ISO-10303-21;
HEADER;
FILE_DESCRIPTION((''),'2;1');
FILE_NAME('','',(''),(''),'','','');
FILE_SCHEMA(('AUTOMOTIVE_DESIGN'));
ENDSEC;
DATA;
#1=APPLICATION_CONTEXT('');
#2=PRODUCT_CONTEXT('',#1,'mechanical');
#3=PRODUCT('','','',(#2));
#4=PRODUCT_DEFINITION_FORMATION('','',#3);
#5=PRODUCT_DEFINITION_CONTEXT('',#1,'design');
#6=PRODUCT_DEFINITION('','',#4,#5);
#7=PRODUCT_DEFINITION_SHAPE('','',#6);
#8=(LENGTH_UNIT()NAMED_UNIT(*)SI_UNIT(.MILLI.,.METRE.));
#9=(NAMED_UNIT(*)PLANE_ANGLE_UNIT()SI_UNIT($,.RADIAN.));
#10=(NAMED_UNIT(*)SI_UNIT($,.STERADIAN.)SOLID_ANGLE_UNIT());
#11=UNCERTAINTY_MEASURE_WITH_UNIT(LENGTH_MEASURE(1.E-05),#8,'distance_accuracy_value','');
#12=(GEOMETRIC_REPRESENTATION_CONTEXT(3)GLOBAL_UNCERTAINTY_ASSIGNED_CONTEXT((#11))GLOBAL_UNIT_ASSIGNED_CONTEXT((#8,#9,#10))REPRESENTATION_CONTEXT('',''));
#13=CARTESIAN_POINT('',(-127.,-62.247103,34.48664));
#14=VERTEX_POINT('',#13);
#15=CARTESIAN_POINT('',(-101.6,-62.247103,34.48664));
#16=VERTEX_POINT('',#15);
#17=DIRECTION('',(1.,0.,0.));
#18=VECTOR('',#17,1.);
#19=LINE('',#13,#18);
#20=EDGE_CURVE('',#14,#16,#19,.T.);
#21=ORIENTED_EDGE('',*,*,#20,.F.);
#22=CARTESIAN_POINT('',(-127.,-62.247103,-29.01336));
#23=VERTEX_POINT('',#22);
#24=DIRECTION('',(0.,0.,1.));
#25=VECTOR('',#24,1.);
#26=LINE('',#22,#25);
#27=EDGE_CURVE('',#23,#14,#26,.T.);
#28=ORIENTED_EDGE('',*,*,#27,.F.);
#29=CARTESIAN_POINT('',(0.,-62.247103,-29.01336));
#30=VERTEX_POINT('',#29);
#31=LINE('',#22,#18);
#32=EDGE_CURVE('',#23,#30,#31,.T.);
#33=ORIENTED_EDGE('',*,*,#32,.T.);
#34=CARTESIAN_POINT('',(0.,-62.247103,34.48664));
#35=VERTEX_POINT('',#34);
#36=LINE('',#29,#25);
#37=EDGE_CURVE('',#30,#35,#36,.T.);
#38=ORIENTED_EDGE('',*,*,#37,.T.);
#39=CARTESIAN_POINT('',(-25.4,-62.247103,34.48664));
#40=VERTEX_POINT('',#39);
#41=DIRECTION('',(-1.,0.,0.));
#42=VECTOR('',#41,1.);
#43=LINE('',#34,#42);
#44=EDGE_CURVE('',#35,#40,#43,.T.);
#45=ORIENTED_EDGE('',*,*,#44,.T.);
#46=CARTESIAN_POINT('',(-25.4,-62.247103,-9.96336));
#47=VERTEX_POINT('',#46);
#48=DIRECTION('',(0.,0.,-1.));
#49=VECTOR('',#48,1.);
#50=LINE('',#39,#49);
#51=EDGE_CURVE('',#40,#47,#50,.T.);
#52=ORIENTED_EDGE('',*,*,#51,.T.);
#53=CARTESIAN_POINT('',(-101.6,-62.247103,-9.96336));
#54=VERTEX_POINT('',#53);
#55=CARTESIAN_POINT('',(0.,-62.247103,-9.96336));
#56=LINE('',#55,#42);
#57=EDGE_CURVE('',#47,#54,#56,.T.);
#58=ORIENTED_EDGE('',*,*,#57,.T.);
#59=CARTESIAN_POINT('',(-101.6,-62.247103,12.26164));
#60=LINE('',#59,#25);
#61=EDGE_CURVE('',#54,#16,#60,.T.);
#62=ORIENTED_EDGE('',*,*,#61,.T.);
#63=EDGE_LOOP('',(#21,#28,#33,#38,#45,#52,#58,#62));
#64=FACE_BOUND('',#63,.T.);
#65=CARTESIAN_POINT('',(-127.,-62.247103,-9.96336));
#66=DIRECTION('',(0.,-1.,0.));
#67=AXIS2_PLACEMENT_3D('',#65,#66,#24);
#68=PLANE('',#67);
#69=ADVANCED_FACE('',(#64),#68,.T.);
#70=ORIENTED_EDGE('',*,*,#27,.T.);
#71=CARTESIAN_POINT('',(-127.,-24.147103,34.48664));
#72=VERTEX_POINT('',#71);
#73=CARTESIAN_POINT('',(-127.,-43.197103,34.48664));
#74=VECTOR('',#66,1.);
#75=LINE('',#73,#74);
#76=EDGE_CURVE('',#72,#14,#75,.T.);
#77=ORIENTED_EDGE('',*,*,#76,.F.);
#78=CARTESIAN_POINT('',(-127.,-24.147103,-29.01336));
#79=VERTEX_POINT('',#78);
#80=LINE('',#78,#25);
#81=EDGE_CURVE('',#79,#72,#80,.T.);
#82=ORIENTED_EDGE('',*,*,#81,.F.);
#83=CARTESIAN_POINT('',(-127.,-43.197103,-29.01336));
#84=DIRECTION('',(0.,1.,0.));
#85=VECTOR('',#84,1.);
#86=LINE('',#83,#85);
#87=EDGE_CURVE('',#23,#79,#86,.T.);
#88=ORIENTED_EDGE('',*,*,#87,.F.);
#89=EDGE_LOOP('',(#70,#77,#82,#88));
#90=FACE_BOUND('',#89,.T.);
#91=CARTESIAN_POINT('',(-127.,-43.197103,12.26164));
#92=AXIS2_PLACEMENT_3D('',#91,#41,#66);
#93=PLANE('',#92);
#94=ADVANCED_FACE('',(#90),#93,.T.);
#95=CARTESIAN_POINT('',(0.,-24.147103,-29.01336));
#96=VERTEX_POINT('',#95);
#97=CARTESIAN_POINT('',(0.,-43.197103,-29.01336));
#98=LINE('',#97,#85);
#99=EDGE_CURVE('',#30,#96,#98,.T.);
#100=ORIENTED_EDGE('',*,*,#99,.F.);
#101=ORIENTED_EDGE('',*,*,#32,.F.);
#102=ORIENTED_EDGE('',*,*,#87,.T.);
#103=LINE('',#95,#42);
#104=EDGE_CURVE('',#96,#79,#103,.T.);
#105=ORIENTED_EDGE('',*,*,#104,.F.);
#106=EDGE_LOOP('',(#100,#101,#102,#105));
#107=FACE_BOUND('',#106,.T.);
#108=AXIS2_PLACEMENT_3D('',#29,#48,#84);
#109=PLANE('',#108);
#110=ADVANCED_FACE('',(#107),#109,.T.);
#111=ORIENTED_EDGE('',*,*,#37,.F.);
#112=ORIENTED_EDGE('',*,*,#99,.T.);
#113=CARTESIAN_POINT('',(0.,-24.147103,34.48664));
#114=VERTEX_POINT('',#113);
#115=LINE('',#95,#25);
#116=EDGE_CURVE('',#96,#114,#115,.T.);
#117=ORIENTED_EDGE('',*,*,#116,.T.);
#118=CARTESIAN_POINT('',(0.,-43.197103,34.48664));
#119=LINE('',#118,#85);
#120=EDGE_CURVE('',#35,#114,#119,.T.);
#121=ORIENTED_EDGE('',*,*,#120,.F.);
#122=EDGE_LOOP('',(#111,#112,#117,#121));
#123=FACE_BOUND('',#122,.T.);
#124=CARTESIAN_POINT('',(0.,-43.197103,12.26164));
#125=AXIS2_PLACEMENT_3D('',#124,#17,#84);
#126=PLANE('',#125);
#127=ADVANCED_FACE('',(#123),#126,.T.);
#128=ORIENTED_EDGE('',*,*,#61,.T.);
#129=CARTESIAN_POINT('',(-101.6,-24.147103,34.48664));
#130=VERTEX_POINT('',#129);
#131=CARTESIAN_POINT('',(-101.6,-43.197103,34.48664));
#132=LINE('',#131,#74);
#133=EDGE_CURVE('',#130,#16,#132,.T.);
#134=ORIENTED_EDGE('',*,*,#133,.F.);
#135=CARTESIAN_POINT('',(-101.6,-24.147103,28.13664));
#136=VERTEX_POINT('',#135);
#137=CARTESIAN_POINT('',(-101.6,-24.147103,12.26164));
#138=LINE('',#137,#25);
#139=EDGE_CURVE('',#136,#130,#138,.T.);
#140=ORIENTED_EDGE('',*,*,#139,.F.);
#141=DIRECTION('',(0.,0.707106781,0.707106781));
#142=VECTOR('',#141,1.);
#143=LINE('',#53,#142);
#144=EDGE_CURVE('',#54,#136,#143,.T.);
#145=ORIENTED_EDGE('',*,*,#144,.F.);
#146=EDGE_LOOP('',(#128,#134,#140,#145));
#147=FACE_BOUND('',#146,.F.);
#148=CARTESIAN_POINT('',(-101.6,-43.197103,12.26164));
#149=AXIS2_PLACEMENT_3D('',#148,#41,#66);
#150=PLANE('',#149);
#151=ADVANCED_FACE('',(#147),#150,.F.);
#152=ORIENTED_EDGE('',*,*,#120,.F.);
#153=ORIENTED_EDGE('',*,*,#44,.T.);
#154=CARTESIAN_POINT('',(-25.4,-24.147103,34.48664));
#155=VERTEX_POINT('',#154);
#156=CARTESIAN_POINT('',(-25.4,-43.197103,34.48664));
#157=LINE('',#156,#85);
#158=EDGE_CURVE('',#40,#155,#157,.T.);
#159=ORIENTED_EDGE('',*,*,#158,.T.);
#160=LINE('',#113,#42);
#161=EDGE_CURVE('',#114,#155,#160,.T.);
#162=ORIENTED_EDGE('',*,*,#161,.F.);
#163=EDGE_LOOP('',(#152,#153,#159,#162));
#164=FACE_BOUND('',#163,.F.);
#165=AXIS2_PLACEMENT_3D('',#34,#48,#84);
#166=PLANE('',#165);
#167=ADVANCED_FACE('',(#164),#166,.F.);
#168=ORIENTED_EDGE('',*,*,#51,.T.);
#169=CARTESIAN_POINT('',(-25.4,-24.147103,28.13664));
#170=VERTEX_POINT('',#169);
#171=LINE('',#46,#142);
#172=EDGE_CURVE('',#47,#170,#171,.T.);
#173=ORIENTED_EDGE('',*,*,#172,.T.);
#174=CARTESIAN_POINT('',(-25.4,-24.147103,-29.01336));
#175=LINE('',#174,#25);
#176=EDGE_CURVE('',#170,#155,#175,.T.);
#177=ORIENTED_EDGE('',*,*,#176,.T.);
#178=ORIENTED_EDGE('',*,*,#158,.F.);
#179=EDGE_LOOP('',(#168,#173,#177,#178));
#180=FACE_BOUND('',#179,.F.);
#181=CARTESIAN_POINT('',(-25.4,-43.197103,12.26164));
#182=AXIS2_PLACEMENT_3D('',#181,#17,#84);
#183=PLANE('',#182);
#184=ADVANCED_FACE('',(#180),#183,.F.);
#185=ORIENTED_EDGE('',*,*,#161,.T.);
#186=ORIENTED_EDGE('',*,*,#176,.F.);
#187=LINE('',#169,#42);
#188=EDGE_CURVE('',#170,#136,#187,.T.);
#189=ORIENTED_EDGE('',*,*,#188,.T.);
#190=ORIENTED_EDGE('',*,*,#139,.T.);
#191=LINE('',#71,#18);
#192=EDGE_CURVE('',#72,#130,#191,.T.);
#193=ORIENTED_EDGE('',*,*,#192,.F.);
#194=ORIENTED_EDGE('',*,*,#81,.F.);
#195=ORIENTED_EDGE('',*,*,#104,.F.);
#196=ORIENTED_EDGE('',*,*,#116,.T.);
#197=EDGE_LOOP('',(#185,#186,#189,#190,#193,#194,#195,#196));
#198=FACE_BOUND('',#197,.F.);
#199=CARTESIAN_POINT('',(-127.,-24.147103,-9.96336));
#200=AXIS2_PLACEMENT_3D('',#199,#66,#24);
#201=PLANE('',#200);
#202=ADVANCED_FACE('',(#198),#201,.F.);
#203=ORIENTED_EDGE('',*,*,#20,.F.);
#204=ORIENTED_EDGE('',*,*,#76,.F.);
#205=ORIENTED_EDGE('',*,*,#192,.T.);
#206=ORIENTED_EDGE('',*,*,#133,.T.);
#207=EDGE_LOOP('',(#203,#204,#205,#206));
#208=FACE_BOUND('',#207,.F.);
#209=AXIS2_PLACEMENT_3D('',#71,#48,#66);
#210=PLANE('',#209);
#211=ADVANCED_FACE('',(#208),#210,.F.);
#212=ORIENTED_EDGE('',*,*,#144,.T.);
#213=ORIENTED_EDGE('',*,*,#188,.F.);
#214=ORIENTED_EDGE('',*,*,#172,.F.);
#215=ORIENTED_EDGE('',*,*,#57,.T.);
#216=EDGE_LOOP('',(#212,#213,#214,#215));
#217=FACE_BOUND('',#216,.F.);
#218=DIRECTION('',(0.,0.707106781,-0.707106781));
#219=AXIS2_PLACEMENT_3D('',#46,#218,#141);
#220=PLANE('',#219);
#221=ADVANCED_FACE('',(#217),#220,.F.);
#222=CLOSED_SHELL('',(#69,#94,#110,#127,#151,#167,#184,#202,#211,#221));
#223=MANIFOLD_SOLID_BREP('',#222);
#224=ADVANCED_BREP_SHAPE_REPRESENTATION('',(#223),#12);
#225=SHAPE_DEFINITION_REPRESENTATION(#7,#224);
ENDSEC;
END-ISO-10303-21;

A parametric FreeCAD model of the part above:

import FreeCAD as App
import Part
import Sketcher
Q = App.Units.Quantity


def add_polygon(sketch, points):
    """Adds a closed chain of lines whose ends are joined by coincident constraints."""
    first, n = sketch.GeometryCount, len(points)
    for a, b in zip(points, points[1:] + points[:1]):
        sketch.addGeometry(Part.LineSegment(App.Vector(*a, 0), App.Vector(*b, 0)), False)
    for i in range(n):
        sketch.addConstraint(Sketcher.Constraint("Coincident", first + i, 2, first + (i + 1) % n, 1))

doc = App.newDocument("Part")
body = doc.addObject("PartDesign::Body", "Body")

sketch1 = body.newObject("Sketcher::SketchObject", "Sketch")
sketch1.AttachmentSupport = (doc.getObject("YZ_Plane"), [""])
sketch1.MapMode = "FlatFace"
add_polygon(sketch1, [(-62, -10), (-62, -29), (-24, -29), (-24, -10)])
sketch1.addConstraint([
    Sketcher.Constraint("Vertical", 0),
    Sketcher.Constraint("Horizontal", 1),
    Sketcher.Constraint("Vertical", 2),
    Sketcher.Constraint("Horizontal", 3),
    Sketcher.Constraint("DistanceX", 1, 1, 1, 2, Q("1.5 in")),
    Sketcher.Constraint("DistanceY", 0, 2, 0, 1, Q("0.75 in")),
    Sketcher.Constraint("DistanceY", 0, 2, -1, 1, 29.01336),
    Sketcher.Constraint("DistanceX", 0, 2, -1, 1, 62.247103),
])
pad1 = body.newObject("PartDesign::Pad", "Pad")
pad1.Profile = sketch1
pad1.Length = Q("5 in")
pad1.Reversed = True

sketch2 = body.newObject("Sketcher::SketchObject", "Sketch001")
sketch2.AttachmentSupport = (doc.getObject("YZ_Plane"), [""])
sketch2.MapMode = "FlatFace"
add_polygon(sketch2, [(-62, 34), (-62, -29), (-24, -29), (-24, 34)])
sketch2.addConstraint([
    Sketcher.Constraint("Vertical", 0),
    Sketcher.Constraint("Horizontal", 1),
    Sketcher.Constraint("Vertical", 2),
    Sketcher.Constraint("Horizontal", 3),
    Sketcher.Constraint("DistanceX", 1, 1, 1, 2, Q("1.5 in")),
    Sketcher.Constraint("DistanceY", 0, 2, 0, 1, Q("2.5 in")),
    Sketcher.Constraint("DistanceY", 0, 2, -1, 1, 29.01336),
    Sketcher.Constraint("DistanceX", 0, 2, -1, 1, 62.247103),
])
pad2 = body.newObject("PartDesign::Pad", "Pad001")
pad2.Profile = sketch2
pad2.Length = Q("1 in")
pad2.Reversed = True

sketch3 = body.newObject("Sketcher::SketchObject", "Sketch002")
sketch3.AttachmentSupport = (doc.getObject("YZ_Plane"), [""])
sketch3.MapMode = "FlatFace"
sketch3.AttachmentOffset = App.Placement(App.Vector(0, 0, -1 * 25.4), App.Rotation())
add_polygon(sketch3, [(-24, -10), (-62, -10), (-24, 28)])
sketch3.addConstraint([
    Sketcher.Constraint("Horizontal", 0),
    Sketcher.Constraint("Vertical", 2),
    Sketcher.Constraint("Equal", 0, 2),
    Sketcher.Constraint("DistanceX", 0, 2, 0, 1, Q("1.5 in")),
    Sketcher.Constraint("DistanceY", 0, 2, -1, 1, 9.96336),
    Sketcher.Constraint("DistanceX", 0, 2, -1, 1, 62.247103),
])
pad3 = body.newObject("PartDesign::Pad", "Pad002")
pad3.Profile = sketch3
pad3.Length = Q("3 in")
pad3.Reversed = True

sketch4 = body.newObject("Sketcher::SketchObject", "Sketch003")
sketch4.AttachmentSupport = (doc.getObject("YZ_Plane"), [""])
sketch4.MapMode = "FlatFace"
sketch4.AttachmentOffset = App.Placement(App.Vector(0, 0, -5 * 25.4), App.Rotation())
add_polygon(sketch4, [(-24, 34), (-24, -10), (-62, -10), (-62, 34)])
sketch4.addConstraint([
    Sketcher.Constraint("Vertical", 0),
    Sketcher.Constraint("Horizontal", 1),
    Sketcher.Constraint("Vertical", 2),
    Sketcher.Constraint("Horizontal", 3),
    Sketcher.Constraint("DistanceX", 1, 2, 1, 1, Q("1.5 in")),
    Sketcher.Constraint("DistanceY", 0, 2, 0, 1, Q("1.75 in")),
    Sketcher.Constraint("DistanceY", 0, 2, -1, 1, 9.96336),
    Sketcher.Constraint("DistanceX", 0, 2, -1, 1, 24.147103),
])
pad4 = body.newObject("PartDesign::Pad", "Pad003")
pad4.Profile = sketch4
pad4.Length = Q("1 in")

doc.recompute()
